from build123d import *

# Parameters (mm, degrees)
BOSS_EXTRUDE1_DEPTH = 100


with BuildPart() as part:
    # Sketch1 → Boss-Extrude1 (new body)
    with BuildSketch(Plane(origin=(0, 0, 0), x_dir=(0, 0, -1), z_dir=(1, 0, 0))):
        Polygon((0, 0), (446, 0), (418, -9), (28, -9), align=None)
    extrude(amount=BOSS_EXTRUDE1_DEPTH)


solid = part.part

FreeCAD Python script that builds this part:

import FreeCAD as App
import Part
import Sketcher
Q = App.Units.Quantity

doc = App.newDocument("Part")
body = doc.addObject("PartDesign::Body", "Body")

sketch1 = body.newObject("Sketcher::SketchObject", "Sketch")
sketch1.AttachmentSupport = (doc.getObject("YZ_Plane"), [""])
sketch1.MapMode = "FlatFace"
sketch1.addGeometry(Part.LineSegment(App.Vector(0, -446, 0), App.Vector(0, 0, 0)), False)
sketch1.addGeometry(Part.LineSegment(App.Vector(0, 0, 0), App.Vector(-9, -28, 0)), False)
sketch1.addGeometry(Part.LineSegment(App.Vector(-9, -28, 0), App.Vector(-9, -418, 0)), False)
sketch1.addGeometry(Part.LineSegment(App.Vector(-9, -418, 0), App.Vector(0, -446, 0)), False)
sketch1.addConstraint(Sketcher.Constraint("Coincident", 0, 2, 1, 1))
sketch1.addConstraint(Sketcher.Constraint("Coincident", 1, 2, 2, 1))
sketch1.addConstraint(Sketcher.Constraint("Coincident", 2, 2, 3, 1))
sketch1.addConstraint(Sketcher.Constraint("Coincident", 3, 2, 0, 1))
sketch1.addConstraint(Sketcher.Constraint("Vertical", 0))
sketch1.addConstraint(Sketcher.Constraint("Vertical", 2))
sketch1.addConstraint(Sketcher.Constraint("Coincident", 0, 2, -1, 1))
sketch1.addConstraint(Sketcher.Constraint("Equal", 1, 3))
sketch1.addConstraint(Sketcher.Constraint("DistanceY", 0, 1, 0, 2, Q("446 mm")))
sketch1.addConstraint(Sketcher.Constraint("DistanceY", 2, 2, 2, 1, Q("390 mm")))
sketch1.addConstraint(Sketcher.Constraint("DistanceX", 1, 2, -1, 1, Q("9 mm")))
pad1 = body.newObject("PartDesign::Pad", "Pad")
pad1.Profile = sketch1
pad1.Length = 100

doc.recompute()
